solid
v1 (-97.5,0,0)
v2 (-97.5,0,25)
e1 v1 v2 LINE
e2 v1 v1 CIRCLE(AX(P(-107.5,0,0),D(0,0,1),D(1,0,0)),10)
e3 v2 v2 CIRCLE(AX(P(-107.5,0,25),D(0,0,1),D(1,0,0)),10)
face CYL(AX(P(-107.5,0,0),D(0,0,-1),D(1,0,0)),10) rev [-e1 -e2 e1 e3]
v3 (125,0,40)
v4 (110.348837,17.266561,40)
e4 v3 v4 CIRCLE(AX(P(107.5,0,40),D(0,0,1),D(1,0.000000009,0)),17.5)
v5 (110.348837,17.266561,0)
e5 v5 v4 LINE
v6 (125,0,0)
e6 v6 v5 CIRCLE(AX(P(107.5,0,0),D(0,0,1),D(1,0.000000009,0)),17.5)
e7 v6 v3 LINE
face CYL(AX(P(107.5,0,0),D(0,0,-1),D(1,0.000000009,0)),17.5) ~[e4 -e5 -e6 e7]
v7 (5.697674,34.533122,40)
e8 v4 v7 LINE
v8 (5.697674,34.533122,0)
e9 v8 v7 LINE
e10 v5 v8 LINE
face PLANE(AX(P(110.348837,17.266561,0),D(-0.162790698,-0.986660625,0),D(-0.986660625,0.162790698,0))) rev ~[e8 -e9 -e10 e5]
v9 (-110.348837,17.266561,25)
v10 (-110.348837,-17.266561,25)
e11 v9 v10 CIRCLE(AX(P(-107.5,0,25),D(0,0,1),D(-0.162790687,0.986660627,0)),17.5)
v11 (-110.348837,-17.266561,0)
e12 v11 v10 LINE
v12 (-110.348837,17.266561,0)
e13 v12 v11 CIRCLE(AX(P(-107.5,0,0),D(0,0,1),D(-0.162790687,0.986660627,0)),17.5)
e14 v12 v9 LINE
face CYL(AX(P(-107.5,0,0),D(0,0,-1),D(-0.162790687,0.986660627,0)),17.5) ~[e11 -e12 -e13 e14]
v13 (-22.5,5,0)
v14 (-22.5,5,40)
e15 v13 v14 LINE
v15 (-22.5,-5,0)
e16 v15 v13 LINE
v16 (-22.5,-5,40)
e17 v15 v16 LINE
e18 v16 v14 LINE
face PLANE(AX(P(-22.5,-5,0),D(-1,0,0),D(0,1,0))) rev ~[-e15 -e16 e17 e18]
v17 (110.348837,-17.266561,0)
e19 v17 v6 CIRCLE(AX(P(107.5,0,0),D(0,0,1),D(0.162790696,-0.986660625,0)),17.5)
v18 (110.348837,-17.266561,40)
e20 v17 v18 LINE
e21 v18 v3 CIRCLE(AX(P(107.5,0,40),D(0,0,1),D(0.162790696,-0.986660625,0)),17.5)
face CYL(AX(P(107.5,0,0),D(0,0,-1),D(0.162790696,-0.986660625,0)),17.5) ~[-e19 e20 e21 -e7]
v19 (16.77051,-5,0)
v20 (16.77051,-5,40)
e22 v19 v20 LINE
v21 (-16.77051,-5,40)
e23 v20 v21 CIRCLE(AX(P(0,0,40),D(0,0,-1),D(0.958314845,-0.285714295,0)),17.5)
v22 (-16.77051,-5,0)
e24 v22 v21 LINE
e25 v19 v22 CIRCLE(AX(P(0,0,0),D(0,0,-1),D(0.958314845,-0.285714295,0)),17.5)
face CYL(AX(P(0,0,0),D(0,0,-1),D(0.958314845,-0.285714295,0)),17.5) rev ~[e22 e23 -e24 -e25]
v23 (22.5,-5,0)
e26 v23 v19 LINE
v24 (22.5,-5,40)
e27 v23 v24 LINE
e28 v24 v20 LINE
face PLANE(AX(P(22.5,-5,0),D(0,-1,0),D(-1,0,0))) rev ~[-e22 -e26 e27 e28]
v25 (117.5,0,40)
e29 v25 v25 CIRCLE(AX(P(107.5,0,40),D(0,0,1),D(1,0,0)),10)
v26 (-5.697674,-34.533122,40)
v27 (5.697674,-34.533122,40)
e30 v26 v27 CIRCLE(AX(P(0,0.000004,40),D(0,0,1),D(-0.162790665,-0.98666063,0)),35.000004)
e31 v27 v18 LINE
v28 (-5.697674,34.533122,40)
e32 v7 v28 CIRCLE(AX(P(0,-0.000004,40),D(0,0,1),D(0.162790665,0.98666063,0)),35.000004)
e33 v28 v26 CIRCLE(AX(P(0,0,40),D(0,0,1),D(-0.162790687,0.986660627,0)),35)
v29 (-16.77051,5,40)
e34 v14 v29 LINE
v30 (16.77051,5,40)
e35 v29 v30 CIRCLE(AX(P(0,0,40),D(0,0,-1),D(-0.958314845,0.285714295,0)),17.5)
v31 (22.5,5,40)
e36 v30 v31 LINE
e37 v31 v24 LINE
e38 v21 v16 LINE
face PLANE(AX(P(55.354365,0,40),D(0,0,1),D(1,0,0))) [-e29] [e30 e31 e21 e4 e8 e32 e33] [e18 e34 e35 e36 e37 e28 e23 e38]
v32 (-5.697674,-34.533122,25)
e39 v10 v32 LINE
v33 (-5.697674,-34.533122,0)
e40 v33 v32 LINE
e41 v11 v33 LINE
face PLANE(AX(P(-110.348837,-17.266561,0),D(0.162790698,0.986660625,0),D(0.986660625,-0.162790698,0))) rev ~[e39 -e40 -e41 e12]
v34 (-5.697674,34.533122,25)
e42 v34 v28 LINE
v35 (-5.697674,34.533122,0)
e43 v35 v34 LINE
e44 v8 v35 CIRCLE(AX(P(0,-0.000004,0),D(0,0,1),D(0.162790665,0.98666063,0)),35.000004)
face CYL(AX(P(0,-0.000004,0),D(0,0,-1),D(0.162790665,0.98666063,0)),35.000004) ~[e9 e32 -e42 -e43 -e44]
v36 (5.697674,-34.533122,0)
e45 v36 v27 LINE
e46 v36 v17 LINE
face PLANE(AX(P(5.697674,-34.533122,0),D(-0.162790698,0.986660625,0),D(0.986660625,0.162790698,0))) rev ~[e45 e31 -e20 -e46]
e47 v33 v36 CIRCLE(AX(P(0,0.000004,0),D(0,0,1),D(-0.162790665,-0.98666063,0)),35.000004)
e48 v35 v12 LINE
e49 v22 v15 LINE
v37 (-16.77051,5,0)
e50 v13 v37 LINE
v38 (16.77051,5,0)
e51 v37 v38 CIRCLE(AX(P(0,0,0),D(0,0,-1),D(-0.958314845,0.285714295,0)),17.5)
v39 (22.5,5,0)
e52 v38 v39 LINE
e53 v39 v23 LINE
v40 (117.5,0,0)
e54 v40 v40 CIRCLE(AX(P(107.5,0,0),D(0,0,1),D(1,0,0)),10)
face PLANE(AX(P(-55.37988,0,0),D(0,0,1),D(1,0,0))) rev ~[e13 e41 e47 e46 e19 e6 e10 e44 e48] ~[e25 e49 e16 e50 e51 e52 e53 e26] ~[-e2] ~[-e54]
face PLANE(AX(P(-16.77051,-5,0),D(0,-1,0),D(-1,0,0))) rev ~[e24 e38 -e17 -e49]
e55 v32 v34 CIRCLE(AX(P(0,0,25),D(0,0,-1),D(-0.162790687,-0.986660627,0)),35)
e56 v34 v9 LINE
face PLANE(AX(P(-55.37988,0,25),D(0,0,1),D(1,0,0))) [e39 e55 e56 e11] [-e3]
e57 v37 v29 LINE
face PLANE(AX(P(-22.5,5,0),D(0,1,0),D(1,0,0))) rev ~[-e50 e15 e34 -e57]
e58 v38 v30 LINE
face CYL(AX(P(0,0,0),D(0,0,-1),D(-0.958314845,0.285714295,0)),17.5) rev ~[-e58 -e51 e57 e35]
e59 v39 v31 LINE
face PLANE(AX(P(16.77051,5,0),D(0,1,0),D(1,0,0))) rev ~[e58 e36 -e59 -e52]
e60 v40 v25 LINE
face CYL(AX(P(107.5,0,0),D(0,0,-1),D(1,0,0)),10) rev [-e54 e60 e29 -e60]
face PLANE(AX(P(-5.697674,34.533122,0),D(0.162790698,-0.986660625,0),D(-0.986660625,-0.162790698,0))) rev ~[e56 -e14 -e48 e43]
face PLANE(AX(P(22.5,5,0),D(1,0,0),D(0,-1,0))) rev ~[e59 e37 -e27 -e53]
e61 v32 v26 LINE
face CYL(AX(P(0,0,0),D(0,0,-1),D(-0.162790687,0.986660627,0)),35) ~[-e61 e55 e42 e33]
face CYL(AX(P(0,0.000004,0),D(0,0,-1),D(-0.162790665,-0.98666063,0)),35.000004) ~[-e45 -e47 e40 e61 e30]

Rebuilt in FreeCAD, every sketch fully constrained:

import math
import FreeCAD as App
import Part
import Sketcher

V = App.Vector
Q = App.Units.Quantity

doc = App.newDocument("Part")
body = doc.addObject("PartDesign::Body", "Body")

# Sketch on XY plane
sketch1 = body.newObject("Sketcher::SketchObject", "Sketch")
sketch1.AttachmentSupport = (doc.getObject("XY_Plane"), [""])
sketch1.MapMode = "FlatFace"
sketch1.addGeometry([
    Part.LineSegment(V(110.348837, 17.266561, 0), V(5.697674, 34.533122, 0)),  # 0
    Part.ArcOfCircle(Part.Circle(V(0, -0.000004, 0), V(0, 0, 1), 35.000004), math.radians(80.631086), math.radians(99.368914)),  # 1
    Part.ArcOfCircle(Part.Circle(V(0, 0, 0), V(0, 0, 1), 35), math.radians(99.368915), math.radians(260.631085)),  # 2
    Part.ArcOfCircle(Part.Circle(V(0, 0.000004, 0), V(0, 0, 1), 35.000004), math.radians(-99.368914), math.radians(-80.631086)),  # 3
    Part.LineSegment(V(5.697674, -34.533122, 0), V(110.348837, -17.266561, 0)),  # 4
    Part.ArcOfCircle(Part.Circle(V(107.5, 0, 0), V(0, 0, 1), 17.5), math.radians(-80.631085), math.radians(0)),  # 5
    Part.ArcOfCircle(Part.Circle(V(107.5, 0, 0), V(0, 0, 1), 17.5), math.radians(0), math.radians(80.631085)),  # 6
    Part.LineSegment(V(-22.5, 5, 0), V(-16.77051, 5, 0)),  # 7
    Part.ArcOfCircle(Part.Circle(V(0, 0, 0), V(0, 0, 1), 17.5), math.radians(16.60155), math.radians(163.39845)),  # 8
    Part.LineSegment(V(16.77051, 5, 0), V(22.5, 5, 0)),  # 9
    Part.LineSegment(V(22.5, 5, 0), V(22.5, -5, 0)),  # 10
    Part.LineSegment(V(22.5, -5, 0), V(16.77051, -5, 0)),  # 11
    Part.ArcOfCircle(Part.Circle(V(0, 0, 0), V(0, 0, 1), 17.5), math.radians(-163.39845), math.radians(-16.60155)),  # 12
    Part.LineSegment(V(-16.77051, -5, 0), V(-22.5, -5, 0)),  # 13
    Part.LineSegment(V(-22.5, -5, 0), V(-22.5, 5, 0)),  # 14
    Part.Circle(V(107.5, 0, 0), V(0, 0, 1), 10),  # 15
], False)
sketch1.addConstraint([
    Sketcher.Constraint("Tangent", 0, 2, 1, 1),
    Sketcher.Constraint("Tangent", 1, 2, 2, 1),
    Sketcher.Constraint("Tangent", 2, 2, 3, 1),
    Sketcher.Constraint("Tangent", 3, 2, 4, 1),
    Sketcher.Constraint("Tangent", 4, 2, 5, 1),
    Sketcher.Constraint("Tangent", 5, 2, 6, 1),
    Sketcher.Constraint("Tangent", 6, 2, 0, 1),
    Sketcher.Constraint("Coincident", 7, 2, 8, 2),
    Sketcher.Constraint("Coincident", 8, 1, 9, 1),
    Sketcher.Constraint("Coincident", 9, 2, 10, 1),
    Sketcher.Constraint("Coincident", 10, 2, 11, 1),
    Sketcher.Constraint("Coincident", 11, 2, 12, 2),
    Sketcher.Constraint("Coincident", 12, 1, 13, 1),
    Sketcher.Constraint("Coincident", 13, 2, 14, 1),
    Sketcher.Constraint("Coincident", 14, 2, 7, 1),
    Sketcher.Constraint("Horizontal", 7),
    Sketcher.Constraint("Horizontal", 9),
    Sketcher.Constraint("Vertical", 10),
    Sketcher.Constraint("Horizontal", 11),
    Sketcher.Constraint("Horizontal", 13),
    Sketcher.Constraint("Vertical", 14),
    Sketcher.Constraint("Coincident", 1, 3, -1, 1),
    Sketcher.Constraint("Coincident", 3, 3, -1, 1),
    Sketcher.Constraint("Coincident", 8, 3, -1, 1),
    Sketcher.Constraint("Coincident", 12, 3, -1, 1),
    Sketcher.Constraint("Coincident", 15, 3, 5, 3),
    Sketcher.Constraint("Equal", 5, 6),
    Sketcher.Constraint("Equal", 6, 8),
    Sketcher.Constraint("Equal", 8, 12),
    Sketcher.Constraint("Symmetric", 9, 2, 13, 2, -1, 1),
    Sketcher.Constraint("PointOnObject", 5, 3, -1),
    Sketcher.Constraint("PointOnObject", 5, 2, -1),
    Sketcher.Constraint("Horizontal", 0, 2, 1, 2),
    Sketcher.Constraint("Horizontal", 2, 2, 3, 2),
    Sketcher.Constraint("Horizontal", 7, 2, 8, 1),
    Sketcher.Constraint("Horizontal", 11, 2, 12, 1),
    Sketcher.Constraint("Diameter", 15, Q("20 mm")),
    Sketcher.Constraint("Radius", 2, Q("35 mm")),
    Sketcher.Constraint("Radius", 5, Q("17.5 mm")),
    Sketcher.Constraint("DistanceY", 10, 2, 10, 1, Q("10 mm")),
    Sketcher.Constraint("DistanceX", -1, 1, 5, 2, Q("125 mm")),
    Sketcher.Constraint("DistanceX", -1, 1, 9, 2, Q("22.5 mm")),
])
pad1 = body.newObject("PartDesign::Pad", "Pad")
pad1.Profile = sketch1
pad1.Length = 40

# Sketch on XY plane
sketch2 = body.newObject("Sketcher::SketchObject", "Sketch001")
sketch2.AttachmentSupport = (doc.getObject("XY_Plane"), [""])
sketch2.MapMode = "FlatFace"
sketch2.addGeometry([
    Part.ArcOfCircle(Part.Circle(V(0, 0, 0), V(0, 0, 1), 35), math.radians(99.368915), math.radians(260.631085)),  # 0
    Part.LineSegment(V(-5.697674, 34.533122, 0), V(-110.348837, 17.266561, 0)),  # 1
    Part.ArcOfCircle(Part.Circle(V(-107.5, 0, 0), V(0, 0, 1), 17.5), math.radians(99.368915), math.radians(260.631085)),  # 2
    Part.LineSegment(V(-110.348837, -17.266561, 0), V(-5.697674, -34.533122, 0)),  # 3
    Part.Circle(V(-107.5, 0, 0), V(0, 0, 1), 10),  # 4
], False)
sketch2.addConstraint([
    Sketcher.Constraint("Tangent", 0, 1, 1, 1),
    Sketcher.Constraint("Tangent", 1, 2, 2, 1),
    Sketcher.Constraint("Tangent", 2, 2, 3, 1),
    Sketcher.Constraint("Tangent", 3, 2, 0, 2),
    Sketcher.Constraint("Coincident", 0, 3, -1, 1),
    Sketcher.Constraint("Coincident", 4, 3, 2, 3),
    Sketcher.Constraint("PointOnObject", 2, 3, -1),
    Sketcher.Constraint("Diameter", 4, Q("20 mm")),
    Sketcher.Constraint("Radius", 0, Q("35 mm")),
    Sketcher.Constraint("Radius", 2, Q("17.5 mm")),
    Sketcher.Constraint("DistanceX", 2, 3, -1, 1, Q("107.5 mm")),
])
pad2 = body.newObject("PartDesign::Pad", "Pad001")
pad2.Profile = sketch2
pad2.Length = 25

doc.recompute()
